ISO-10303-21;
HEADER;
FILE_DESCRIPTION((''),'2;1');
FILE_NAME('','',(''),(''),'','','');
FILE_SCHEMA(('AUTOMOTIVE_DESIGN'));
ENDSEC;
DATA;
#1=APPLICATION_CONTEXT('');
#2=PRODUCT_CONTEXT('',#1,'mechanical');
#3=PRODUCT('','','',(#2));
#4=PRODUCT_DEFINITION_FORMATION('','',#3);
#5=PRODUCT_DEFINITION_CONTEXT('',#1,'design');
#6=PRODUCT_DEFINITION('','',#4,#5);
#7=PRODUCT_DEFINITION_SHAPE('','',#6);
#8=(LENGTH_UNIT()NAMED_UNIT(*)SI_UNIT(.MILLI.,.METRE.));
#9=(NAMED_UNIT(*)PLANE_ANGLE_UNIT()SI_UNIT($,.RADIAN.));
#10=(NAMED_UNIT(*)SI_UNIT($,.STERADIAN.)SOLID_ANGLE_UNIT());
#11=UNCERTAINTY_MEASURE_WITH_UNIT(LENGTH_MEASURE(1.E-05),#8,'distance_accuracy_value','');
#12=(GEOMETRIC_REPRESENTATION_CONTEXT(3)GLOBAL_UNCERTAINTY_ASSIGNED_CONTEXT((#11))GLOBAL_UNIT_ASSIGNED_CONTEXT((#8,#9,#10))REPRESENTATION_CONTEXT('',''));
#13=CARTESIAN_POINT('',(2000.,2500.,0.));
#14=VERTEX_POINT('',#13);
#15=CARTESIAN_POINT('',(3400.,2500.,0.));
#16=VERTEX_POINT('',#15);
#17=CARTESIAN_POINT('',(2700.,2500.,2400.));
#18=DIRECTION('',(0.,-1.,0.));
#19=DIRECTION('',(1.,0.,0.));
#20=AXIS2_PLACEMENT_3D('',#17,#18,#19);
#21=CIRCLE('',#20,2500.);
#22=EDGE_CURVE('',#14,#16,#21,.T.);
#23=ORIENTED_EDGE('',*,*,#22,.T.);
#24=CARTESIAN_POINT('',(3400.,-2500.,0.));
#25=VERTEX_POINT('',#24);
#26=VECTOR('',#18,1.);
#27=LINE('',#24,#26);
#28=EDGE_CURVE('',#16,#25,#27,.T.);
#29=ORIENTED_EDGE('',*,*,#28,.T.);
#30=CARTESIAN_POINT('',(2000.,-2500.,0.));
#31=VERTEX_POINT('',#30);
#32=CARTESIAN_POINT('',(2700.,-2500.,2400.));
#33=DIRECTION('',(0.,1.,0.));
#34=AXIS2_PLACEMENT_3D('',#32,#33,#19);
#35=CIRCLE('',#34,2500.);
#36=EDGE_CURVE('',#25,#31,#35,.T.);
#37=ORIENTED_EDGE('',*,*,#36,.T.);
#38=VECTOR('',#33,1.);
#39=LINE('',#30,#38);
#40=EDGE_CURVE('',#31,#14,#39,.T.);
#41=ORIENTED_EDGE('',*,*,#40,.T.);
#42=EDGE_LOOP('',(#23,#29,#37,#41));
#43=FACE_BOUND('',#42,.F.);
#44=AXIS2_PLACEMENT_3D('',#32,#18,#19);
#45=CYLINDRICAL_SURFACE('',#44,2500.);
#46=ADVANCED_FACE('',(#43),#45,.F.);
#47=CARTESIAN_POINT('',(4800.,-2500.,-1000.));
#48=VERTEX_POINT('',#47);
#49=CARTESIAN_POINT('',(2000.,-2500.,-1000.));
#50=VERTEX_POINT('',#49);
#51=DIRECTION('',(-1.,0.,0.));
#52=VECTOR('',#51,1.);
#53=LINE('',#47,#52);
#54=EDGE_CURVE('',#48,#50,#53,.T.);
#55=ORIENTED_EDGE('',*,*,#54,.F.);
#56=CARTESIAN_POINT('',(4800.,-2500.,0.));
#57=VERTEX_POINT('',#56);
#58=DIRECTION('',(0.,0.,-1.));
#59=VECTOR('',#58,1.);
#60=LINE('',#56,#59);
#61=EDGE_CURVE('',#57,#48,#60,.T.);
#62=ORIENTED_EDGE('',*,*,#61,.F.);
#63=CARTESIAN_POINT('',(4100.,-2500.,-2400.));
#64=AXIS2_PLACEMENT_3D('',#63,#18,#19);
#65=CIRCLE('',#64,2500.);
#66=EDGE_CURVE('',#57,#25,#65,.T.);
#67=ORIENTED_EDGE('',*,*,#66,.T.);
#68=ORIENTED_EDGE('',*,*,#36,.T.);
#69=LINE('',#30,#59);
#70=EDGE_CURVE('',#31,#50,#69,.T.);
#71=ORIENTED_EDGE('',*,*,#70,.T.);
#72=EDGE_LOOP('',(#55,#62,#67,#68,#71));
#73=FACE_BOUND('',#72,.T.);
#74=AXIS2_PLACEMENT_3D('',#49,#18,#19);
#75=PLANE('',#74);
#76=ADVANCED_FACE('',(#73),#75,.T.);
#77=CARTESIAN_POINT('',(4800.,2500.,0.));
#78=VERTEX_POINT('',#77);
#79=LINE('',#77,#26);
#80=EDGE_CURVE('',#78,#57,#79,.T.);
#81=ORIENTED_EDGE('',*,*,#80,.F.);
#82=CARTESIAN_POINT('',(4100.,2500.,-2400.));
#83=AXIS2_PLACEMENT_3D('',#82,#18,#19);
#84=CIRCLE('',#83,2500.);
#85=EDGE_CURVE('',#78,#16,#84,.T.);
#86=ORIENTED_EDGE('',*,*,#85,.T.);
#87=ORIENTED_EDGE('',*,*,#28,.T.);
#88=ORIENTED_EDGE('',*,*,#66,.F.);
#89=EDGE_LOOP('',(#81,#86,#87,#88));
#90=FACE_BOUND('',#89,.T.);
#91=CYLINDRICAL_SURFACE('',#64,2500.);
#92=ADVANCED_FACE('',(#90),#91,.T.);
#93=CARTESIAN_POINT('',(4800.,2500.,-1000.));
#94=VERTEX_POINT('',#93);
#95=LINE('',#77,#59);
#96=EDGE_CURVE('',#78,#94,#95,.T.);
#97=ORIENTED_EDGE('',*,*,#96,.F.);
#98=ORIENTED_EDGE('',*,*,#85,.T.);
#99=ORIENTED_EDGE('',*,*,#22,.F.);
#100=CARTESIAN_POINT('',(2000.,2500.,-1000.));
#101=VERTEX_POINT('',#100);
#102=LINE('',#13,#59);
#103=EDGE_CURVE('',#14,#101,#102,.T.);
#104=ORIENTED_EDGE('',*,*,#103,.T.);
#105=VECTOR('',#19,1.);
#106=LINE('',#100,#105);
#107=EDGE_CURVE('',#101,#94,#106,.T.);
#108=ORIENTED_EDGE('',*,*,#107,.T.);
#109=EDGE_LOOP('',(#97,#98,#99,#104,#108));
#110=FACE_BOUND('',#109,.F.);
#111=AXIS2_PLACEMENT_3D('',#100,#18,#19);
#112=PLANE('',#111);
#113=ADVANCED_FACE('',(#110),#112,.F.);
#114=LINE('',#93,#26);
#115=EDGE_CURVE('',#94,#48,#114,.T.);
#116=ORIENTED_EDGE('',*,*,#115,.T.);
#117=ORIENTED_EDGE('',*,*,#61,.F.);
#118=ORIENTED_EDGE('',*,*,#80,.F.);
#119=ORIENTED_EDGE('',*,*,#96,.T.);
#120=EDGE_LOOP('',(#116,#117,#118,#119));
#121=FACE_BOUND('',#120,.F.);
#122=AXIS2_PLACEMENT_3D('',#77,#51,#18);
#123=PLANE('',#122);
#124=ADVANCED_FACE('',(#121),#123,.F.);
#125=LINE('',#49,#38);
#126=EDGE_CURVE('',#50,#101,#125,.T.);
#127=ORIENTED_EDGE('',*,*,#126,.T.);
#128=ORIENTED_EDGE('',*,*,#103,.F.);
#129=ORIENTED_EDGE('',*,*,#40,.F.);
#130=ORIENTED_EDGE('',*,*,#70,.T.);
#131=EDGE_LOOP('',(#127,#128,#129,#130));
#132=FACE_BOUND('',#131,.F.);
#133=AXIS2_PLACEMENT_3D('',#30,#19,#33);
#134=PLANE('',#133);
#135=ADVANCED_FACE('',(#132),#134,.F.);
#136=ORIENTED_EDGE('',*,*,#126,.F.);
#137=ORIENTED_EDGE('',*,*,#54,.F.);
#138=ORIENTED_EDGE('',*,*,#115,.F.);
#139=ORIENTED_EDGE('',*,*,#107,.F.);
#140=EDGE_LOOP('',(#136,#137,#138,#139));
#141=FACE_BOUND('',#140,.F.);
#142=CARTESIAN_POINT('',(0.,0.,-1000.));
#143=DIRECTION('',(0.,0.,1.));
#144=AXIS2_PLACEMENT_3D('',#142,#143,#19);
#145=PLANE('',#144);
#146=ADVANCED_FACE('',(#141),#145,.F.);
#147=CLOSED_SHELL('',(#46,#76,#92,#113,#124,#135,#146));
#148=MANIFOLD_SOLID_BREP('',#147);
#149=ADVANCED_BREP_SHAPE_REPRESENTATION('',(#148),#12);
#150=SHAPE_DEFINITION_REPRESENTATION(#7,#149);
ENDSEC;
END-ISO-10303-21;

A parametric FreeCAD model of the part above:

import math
import FreeCAD as App
import Part
import Sketcher
from FreeCAD import Vector

doc = App.newDocument("Part")
body = doc.addObject("PartDesign::Body", "Body")

# Sketch on XY plane
sketch1 = body.newObject("Sketcher::SketchObject", "Sketch")
sketch1.AttachmentSupport = (doc.getObject("XY_Plane"), [""])
sketch1.MapMode = "FlatFace"
sketch1.addGeometry([
    Part.LineSegment(Vector(4800, 2500, 0), Vector(2000, 2500, 0)),
    Part.LineSegment(Vector(2000, 2500, 0), Vector(2000, -2500, 0)),
    Part.LineSegment(Vector(2000, -2500, 0), Vector(4800, -2500, 0)),
    Part.LineSegment(Vector(4800, -2500, 0), Vector(4800, 2500, 0)),
], False)
sketch1.addConstraint([
    Sketcher.Constraint("Coincident", 0, 2, 1, 1),
    Sketcher.Constraint("Coincident", 1, 2, 2, 1),
    Sketcher.Constraint("Coincident", 2, 2, 3, 1),
    Sketcher.Constraint("Coincident", 3, 2, 0, 1),
    Sketcher.Constraint("Horizontal", 0),
    Sketcher.Constraint("Vertical", 1),
    Sketcher.Constraint("Horizontal", 2),
    Sketcher.Constraint("Vertical", 3),
    Sketcher.Constraint("DistanceX", 0, 2, 0, 1, 2800.0),
    Sketcher.Constraint("DistanceY", 1, 2, 1, 1, 5000.0),
    Sketcher.Constraint("DistanceX", -1, 1, 0, 2, 2000.0),
    Sketcher.Constraint("DistanceY", -1, 1, 0, 2, 2500.0),
])
pad1 = body.newObject("PartDesign::Pad", "Pad")
pad1.Profile = sketch1
pad1.Length = 1000
pad1.Reversed = True

# Sketch on XZ plane
sketch2 = body.newObject("Sketcher::SketchObject", "Sketch001")
sketch2.AttachmentSupport = (doc.getObject("XZ_Plane"), [""])
sketch2.MapMode = "FlatFace"
sketch2.AttachmentOffset = App.Placement(Vector(0, 0, 2500), App.Rotation())
sketch2.addGeometry(Part.Circle(Vector(2700, 2400, 0), Vector(0, 0, 1), 2500), False)
sketch2.addConstraint([
    Sketcher.Constraint("Diameter", 0, 5000.0),
    Sketcher.Constraint("DistanceX", -1, 1, 0, 3, 2700.0),
    Sketcher.Constraint("DistanceY", -1, 1, 0, 3, 2400.0),
])
pocket1 = body.newObject("PartDesign::Pocket", "Pocket")
pocket1.Profile = sketch2
pocket1.Type = "ThroughAll"

# Sketch on XZ plane
sketch3 = body.newObject("Sketcher::SketchObject", "Sketch002")
sketch3.AttachmentSupport = (doc.getObject("XZ_Plane"), [""])
sketch3.MapMode = "FlatFace"
sketch3.AttachmentOffset = App.Placement(Vector(0, 0, 2500), App.Rotation())
sketch3.addGeometry([
    Part.LineSegment(Vector(3400, 0, 0), Vector(4800, 0, 0)),
    Part.ArcOfCircle(Part.Circle(Vector(4100, -2400, 0), Vector(0, 0, 1), 2500), math.radians(74), math.radians(106)),
], False)
sketch3.addConstraint([
    Sketcher.Constraint("Coincident", 0, 1, 1, 2),
    Sketcher.Constraint("Coincident", 1, 1, 0, 2),
    Sketcher.Constraint("Horizontal", 0),
    Sketcher.Constraint("PointOnObject", 0, 1, -1),
    Sketcher.Constraint("Radius", 1, 2500.0),
    Sketcher.Constraint("DistanceX", 0, 1, 0, 2, 1400.0),
    Sketcher.Constraint("DistanceX", -1, 1, 1, 3, 4100.0),
])
pad2 = body.newObject("PartDesign::Pad", "Pad001")
pad2.Profile = sketch3
pad2.Length = 5000
pad2.Reversed = True

doc.recompute()
